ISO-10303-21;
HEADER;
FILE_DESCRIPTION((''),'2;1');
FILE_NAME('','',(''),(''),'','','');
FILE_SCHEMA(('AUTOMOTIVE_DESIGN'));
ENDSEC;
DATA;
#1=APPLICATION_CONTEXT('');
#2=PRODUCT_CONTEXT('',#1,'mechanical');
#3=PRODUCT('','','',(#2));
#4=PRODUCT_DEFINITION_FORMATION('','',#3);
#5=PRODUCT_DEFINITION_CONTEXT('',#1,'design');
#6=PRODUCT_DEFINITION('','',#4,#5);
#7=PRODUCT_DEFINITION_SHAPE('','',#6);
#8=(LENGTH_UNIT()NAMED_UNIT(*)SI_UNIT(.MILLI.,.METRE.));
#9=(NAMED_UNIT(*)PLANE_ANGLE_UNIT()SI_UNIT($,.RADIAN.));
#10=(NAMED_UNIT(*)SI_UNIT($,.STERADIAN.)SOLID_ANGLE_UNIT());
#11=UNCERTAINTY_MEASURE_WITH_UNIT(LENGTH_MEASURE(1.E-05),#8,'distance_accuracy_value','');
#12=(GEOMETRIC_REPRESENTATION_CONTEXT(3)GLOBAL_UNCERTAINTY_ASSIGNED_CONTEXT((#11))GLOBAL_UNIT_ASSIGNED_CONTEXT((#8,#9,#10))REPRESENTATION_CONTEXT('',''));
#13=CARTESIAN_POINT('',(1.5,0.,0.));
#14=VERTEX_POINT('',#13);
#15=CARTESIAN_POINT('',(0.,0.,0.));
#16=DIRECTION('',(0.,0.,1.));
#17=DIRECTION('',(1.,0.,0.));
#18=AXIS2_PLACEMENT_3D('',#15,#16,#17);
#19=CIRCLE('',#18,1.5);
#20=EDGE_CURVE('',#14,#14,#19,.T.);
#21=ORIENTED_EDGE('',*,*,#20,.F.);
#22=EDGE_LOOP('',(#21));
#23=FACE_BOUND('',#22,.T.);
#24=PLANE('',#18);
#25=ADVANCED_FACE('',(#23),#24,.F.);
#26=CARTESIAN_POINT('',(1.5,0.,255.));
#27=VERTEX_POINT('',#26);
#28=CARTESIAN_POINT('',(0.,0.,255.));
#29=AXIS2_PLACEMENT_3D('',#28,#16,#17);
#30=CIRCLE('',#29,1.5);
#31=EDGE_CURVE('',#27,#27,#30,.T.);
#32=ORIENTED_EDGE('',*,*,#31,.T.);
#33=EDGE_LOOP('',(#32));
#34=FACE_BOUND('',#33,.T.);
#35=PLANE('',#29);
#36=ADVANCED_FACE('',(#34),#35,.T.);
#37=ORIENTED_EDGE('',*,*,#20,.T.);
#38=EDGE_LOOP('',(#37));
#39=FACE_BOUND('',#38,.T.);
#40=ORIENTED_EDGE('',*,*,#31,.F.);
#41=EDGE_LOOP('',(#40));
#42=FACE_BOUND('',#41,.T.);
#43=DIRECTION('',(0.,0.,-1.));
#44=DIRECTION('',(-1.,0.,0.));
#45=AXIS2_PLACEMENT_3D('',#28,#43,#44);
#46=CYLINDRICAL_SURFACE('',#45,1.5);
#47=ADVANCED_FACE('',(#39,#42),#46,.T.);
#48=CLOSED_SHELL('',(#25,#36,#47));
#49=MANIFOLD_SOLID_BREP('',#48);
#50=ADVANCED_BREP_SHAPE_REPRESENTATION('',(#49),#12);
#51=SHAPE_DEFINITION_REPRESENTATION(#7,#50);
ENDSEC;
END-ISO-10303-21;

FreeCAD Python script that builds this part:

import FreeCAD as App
import Part
import Sketcher
from FreeCAD import Vector
Q = App.Units.Quantity

doc = App.newDocument("Part")
body = doc.addObject("PartDesign::Body", "Body")

# Sketch on XY plane
sketch1 = body.newObject("Sketcher::SketchObject", "Sketch")
sketch1.AttachmentSupport = (doc.getObject("XY_Plane"), [""])
sketch1.MapMode = "FlatFace"
sketch1.addGeometry(Part.Circle(Vector(0, 0, 0), Vector(0, 0, 1), 1.5), False)
sketch1.addConstraint([
    Sketcher.Constraint("Coincident", 0, 3, -1, 1),
    Sketcher.Constraint("Diameter", 0, Q("3 mm")),
])
pad1 = body.newObject("PartDesign::Pad", "Pad")
pad1.Profile = sketch1
pad1.Length = 255

doc.recompute()
